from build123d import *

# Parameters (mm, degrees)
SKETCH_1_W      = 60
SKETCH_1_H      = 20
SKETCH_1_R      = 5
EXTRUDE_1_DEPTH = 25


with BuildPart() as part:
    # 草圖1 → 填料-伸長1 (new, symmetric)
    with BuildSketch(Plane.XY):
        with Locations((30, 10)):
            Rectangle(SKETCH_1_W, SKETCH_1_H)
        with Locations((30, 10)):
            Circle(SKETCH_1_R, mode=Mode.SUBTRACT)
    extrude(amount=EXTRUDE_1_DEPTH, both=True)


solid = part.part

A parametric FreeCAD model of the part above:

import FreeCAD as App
import Part
import Sketcher

V = App.Vector
Q = App.Units.Quantity

doc = App.newDocument("Part")
body = doc.addObject("PartDesign::Body", "Body")

sketch1 = body.newObject("Sketcher::SketchObject", "Sketch")
sketch1.AttachmentSupport = (doc.getObject("XY_Plane"), [""])
sketch1.MapMode = "FlatFace"
sketch1.addGeometry(Part.LineSegment(V(0, 20, 0), V(0, 0, 0)), False)
sketch1.addGeometry(Part.LineSegment(V(0, 0, 0), V(60, 0, 0)), False)
sketch1.addGeometry(Part.LineSegment(V(60, 0, 0), V(60, 20, 0)), False)
sketch1.addGeometry(Part.LineSegment(V(60, 20, 0), V(0, 20, 0)), False)
sketch1.addGeometry(Part.Circle(V(30, 10, 0), V(0, 0, 1), 5), False)
sketch1.addConstraint(Sketcher.Constraint("Coincident", 0, 2, 1, 1))
sketch1.addConstraint(Sketcher.Constraint("Coincident", 1, 2, 2, 1))
sketch1.addConstraint(Sketcher.Constraint("Coincident", 2, 2, 3, 1))
sketch1.addConstraint(Sketcher.Constraint("Coincident", 3, 2, 0, 1))
sketch1.addConstraint(Sketcher.Constraint("Vertical", 0))
sketch1.addConstraint(Sketcher.Constraint("Horizontal", 1))
sketch1.addConstraint(Sketcher.Constraint("Vertical", 2))
sketch1.addConstraint(Sketcher.Constraint("Horizontal", 3))
sketch1.addConstraint(Sketcher.Constraint("Coincident", 0, 2, -1, 1))
sketch1.addConstraint(Sketcher.Constraint("Diameter", 4, Q("10 mm")))
sketch1.addConstraint(Sketcher.Constraint("DistanceX", 1, 1, 1, 2, Q("60 mm")))
sketch1.addConstraint(Sketcher.Constraint("DistanceY", 0, 2, 0, 1, Q("20 mm")))
sketch1.addConstraint(Sketcher.Constraint("DistanceX", -1, 1, 4, 3, Q("30 mm")))
sketch1.addConstraint(Sketcher.Constraint("DistanceY", -1, 1, 4, 3, Q("10 mm")))
pad1 = body.newObject("PartDesign::Pad", "Pad")
pad1.Profile = sketch1
pad1.Length = 50
pad1.Midplane = True

doc.recompute()
